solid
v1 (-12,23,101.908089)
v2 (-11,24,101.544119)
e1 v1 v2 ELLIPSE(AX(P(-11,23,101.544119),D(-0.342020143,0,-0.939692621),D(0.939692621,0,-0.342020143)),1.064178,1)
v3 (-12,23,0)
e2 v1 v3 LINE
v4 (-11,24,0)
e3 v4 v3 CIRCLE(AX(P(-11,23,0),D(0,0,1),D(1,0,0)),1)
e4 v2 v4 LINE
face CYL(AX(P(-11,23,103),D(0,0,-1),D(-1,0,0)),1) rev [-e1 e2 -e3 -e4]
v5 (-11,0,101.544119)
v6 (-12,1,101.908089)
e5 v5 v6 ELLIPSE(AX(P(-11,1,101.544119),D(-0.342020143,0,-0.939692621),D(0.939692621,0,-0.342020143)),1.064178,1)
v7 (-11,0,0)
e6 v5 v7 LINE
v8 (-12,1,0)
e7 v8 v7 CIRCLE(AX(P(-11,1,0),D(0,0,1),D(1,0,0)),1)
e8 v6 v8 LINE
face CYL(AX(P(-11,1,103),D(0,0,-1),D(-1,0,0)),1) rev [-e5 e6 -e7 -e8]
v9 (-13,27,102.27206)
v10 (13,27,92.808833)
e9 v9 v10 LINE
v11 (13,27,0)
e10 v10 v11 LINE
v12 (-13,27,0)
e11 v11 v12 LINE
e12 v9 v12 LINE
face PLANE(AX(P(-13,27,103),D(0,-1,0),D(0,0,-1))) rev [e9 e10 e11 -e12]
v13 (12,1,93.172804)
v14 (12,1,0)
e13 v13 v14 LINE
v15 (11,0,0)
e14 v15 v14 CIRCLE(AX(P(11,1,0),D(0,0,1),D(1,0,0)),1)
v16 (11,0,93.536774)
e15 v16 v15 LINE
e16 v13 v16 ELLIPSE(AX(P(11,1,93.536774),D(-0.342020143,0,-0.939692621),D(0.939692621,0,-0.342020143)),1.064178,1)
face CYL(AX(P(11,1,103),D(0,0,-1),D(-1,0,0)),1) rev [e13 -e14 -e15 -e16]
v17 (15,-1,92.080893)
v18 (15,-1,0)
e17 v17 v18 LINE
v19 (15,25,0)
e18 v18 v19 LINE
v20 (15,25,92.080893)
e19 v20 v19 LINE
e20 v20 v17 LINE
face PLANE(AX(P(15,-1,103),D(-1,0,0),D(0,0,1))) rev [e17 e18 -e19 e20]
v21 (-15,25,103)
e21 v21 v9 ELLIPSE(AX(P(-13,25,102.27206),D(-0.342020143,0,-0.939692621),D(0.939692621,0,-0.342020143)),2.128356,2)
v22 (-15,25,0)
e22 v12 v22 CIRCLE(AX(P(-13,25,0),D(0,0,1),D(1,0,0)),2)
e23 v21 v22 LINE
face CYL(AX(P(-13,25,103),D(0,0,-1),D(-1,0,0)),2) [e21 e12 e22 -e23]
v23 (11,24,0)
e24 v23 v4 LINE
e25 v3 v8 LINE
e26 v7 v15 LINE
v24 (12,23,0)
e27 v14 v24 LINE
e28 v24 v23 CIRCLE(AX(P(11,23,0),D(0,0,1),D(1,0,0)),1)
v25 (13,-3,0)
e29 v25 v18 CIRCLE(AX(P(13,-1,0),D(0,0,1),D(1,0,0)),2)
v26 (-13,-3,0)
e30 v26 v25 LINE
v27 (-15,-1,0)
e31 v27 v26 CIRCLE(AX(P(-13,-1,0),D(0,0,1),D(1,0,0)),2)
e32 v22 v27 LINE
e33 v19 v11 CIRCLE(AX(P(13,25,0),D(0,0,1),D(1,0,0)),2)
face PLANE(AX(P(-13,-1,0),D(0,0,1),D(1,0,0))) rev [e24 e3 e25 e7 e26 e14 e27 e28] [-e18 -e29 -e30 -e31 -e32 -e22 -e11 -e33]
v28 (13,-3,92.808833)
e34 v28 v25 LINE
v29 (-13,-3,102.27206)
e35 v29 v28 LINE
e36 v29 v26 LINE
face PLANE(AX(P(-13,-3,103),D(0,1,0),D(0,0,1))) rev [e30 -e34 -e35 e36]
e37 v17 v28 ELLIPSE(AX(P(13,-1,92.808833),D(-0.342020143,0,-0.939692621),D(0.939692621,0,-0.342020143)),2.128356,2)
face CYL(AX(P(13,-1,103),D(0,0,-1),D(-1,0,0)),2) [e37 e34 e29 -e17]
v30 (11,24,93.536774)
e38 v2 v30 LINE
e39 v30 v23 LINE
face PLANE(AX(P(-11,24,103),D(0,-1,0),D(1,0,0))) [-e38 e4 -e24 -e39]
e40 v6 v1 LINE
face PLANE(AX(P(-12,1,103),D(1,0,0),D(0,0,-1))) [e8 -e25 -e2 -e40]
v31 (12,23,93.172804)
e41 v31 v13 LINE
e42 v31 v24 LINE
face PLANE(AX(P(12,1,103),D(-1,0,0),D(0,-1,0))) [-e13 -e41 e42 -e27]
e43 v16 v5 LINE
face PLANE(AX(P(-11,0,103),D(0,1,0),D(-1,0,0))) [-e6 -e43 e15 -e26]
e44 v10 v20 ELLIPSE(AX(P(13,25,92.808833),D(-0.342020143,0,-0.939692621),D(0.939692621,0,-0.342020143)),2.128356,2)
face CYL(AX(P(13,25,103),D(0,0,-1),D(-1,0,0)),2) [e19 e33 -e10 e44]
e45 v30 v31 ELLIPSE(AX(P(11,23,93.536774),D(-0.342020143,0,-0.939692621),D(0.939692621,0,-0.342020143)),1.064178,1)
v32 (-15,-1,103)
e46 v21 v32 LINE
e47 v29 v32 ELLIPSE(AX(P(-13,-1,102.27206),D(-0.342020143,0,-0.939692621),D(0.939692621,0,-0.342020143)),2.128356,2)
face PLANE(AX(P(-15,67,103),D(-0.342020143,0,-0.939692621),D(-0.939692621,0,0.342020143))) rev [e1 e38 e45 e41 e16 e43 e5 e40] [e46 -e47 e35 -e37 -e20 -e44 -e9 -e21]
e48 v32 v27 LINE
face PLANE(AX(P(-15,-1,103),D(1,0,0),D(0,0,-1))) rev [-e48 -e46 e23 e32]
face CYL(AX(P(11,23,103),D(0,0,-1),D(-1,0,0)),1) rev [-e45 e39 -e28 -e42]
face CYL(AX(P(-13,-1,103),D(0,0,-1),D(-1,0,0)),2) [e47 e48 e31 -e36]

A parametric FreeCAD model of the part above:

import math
import FreeCAD as App
import Part
import Sketcher
from FreeCAD import Vector
Q = App.Units.Quantity


def add_polygon(sketch, points):
    """Adds a closed chain of lines whose ends are joined by coincident constraints."""
    first, n = sketch.GeometryCount, len(points)
    for a, b in zip(points, points[1:] + points[:1]):
        sketch.addGeometry(Part.LineSegment(App.Vector(*a, 0), App.Vector(*b, 0)), False)
    for i in range(n):
        sketch.addConstraint(Sketcher.Constraint("Coincident", first + i, 2, first + (i + 1) % n, 1))

doc = App.newDocument("Part")
body = doc.addObject("PartDesign::Body", "Body")

sketch1 = doc.addObject("Sketcher::SketchObject", "Sketch")
body.addObject(sketch1)
sketch1.AttachmentSupport = (doc.XY_Plane, [""])
sketch1.MapMode = "FlatFace"
sketch1.addGeometry(Part.LineSegment(Vector(-13, -3, 0), Vector(13, -3, 0)), False)
sketch1.addGeometry(Part.ArcOfCircle(Part.Circle(Vector(13, -1, 0), Vector(0, 0, 1), 2), math.radians(-90), math.radians(0)), False)
sketch1.addGeometry(Part.LineSegment(Vector(15, -1, 0), Vector(15, 25, 0)), False)
sketch1.addGeometry(Part.ArcOfCircle(Part.Circle(Vector(13, 25, 0), Vector(0, 0, 1), 2), math.radians(0), math.radians(90)), False)
sketch1.addGeometry(Part.LineSegment(Vector(13, 27, 0), Vector(-13, 27, 0)), False)
sketch1.addGeometry(Part.ArcOfCircle(Part.Circle(Vector(-13, 25, 0), Vector(0, 0, 1), 2), math.radians(90), math.radians(180)), False)
sketch1.addGeometry(Part.LineSegment(Vector(-15, 25, 0), Vector(-15, -1, 0)), False)
sketch1.addGeometry(Part.ArcOfCircle(Part.Circle(Vector(-13, -1, 0), Vector(0, 0, 1), 2), math.radians(-180), math.radians(-90)), False)
sketch1.addGeometry(Part.LineSegment(Vector(11, 0, 0), Vector(-11, 0, 0)), False)
sketch1.addGeometry(Part.ArcOfCircle(Part.Circle(Vector(-11, 1, 0), Vector(0, 0, 1), 1), math.radians(-180), math.radians(-90)), False)
sketch1.addGeometry(Part.LineSegment(Vector(-12, 1, 0), Vector(-12, 23, 0)), False)
sketch1.addGeometry(Part.ArcOfCircle(Part.Circle(Vector(-11, 23, 0), Vector(0, 0, 1), 1), math.radians(90), math.radians(180)), False)
sketch1.addGeometry(Part.LineSegment(Vector(-11, 24, 0), Vector(11, 24, 0)), False)
sketch1.addGeometry(Part.ArcOfCircle(Part.Circle(Vector(11, 23, 0), Vector(0, 0, 1), 1), math.radians(0), math.radians(90)), False)
sketch1.addGeometry(Part.LineSegment(Vector(12, 23, 0), Vector(12, 1, 0)), False)
sketch1.addGeometry(Part.ArcOfCircle(Part.Circle(Vector(11, 1, 0), Vector(0, 0, 1), 1), math.radians(-90), math.radians(0)), False)
sketch1.addConstraint(Sketcher.Constraint("Tangent", 0, 2, 1, 1))
sketch1.addConstraint(Sketcher.Constraint("Tangent", 1, 2, 2, 1))
sketch1.addConstraint(Sketcher.Constraint("Tangent", 2, 2, 3, 1))
sketch1.addConstraint(Sketcher.Constraint("Tangent", 3, 2, 4, 1))
sketch1.addConstraint(Sketcher.Constraint("Tangent", 4, 2, 5, 1))
sketch1.addConstraint(Sketcher.Constraint("Tangent", 5, 2, 6, 1))
sketch1.addConstraint(Sketcher.Constraint("Tangent", 6, 2, 7, 1))
sketch1.addConstraint(Sketcher.Constraint("Tangent", 7, 2, 0, 1))
sketch1.addConstraint(Sketcher.Constraint("Tangent", 8, 2, 9, 2))
sketch1.addConstraint(Sketcher.Constraint("Tangent", 9, 1, 10, 1))
sketch1.addConstraint(Sketcher.Constraint("Tangent", 10, 2, 11, 2))
sketch1.addConstraint(Sketcher.Constraint("Tangent", 11, 1, 12, 1))
sketch1.addConstraint(Sketcher.Constraint("Tangent", 12, 2, 13, 2))
sketch1.addConstraint(Sketcher.Constraint("Tangent", 13, 1, 14, 1))
sketch1.addConstraint(Sketcher.Constraint("Tangent", 14, 2, 15, 2))
sketch1.addConstraint(Sketcher.Constraint("Tangent", 15, 1, 8, 1))
sketch1.addConstraint(Sketcher.Constraint("Horizontal", 0))
sketch1.addConstraint(Sketcher.Constraint("Vertical", 2))
sketch1.addConstraint(Sketcher.Constraint("Horizontal", 4))
sketch1.addConstraint(Sketcher.Constraint("Vertical", 6))
sketch1.addConstraint(Sketcher.Constraint("Horizontal", 8))
sketch1.addConstraint(Sketcher.Constraint("Vertical", 10))
sketch1.addConstraint(Sketcher.Constraint("Horizontal", 12))
sketch1.addConstraint(Sketcher.Constraint("Vertical", 14))
sketch1.addConstraint(Sketcher.Constraint("Equal", 1, 3))
sketch1.addConstraint(Sketcher.Constraint("Equal", 3, 5))
sketch1.addConstraint(Sketcher.Constraint("Equal", 5, 7))
sketch1.addConstraint(Sketcher.Constraint("Equal", 9, 11))
sketch1.addConstraint(Sketcher.Constraint("Equal", 11, 13))
sketch1.addConstraint(Sketcher.Constraint("Equal", 13, 15))
sketch1.addConstraint(Sketcher.Constraint("Symmetric", 8, 2, 15, 1, -1, 1))
sketch1.addConstraint(Sketcher.Constraint("Equal", 4, 2))
sketch1.addConstraint(Sketcher.Constraint("Equal", 12, 10))
sketch1.addConstraint(Sketcher.Constraint("Radius", 1, 2.0))
sketch1.addConstraint(Sketcher.Constraint("Radius", 9, 1.0))
sketch1.addConstraint(Sketcher.Constraint("DistanceX", 0, 1, 0, 2, 26.0))
sketch1.addConstraint(Sketcher.Constraint("DistanceX", 8, 2, 8, 1, 22.0))
sketch1.addConstraint(Sketcher.Constraint("DistanceX", -1, 1, 1, 3, 13.0))
sketch1.addConstraint(Sketcher.Constraint("DistanceY", 1, 3, -1, 1, 1.0))
pad1 = doc.addObject("PartDesign::Pad", "Pad")
body.addObject(pad1)
pad1.Profile = sketch1
pad1.Length = 103

sketch2 = doc.addObject("Sketcher::SketchObject", "Sketch001")
body.addObject(sketch2)
sketch2.AttachmentSupport = (doc.XZ_Plane, [""])
sketch2.MapMode = "FlatFace"
sketch2.AttachmentOffset = App.Placement(Vector(0, 0, 3), App.Rotation())
add_polygon(sketch2, [(-15, 103), (66.156264, 73.461535), (66.156264, 103)])
sketch2.addConstraint(Sketcher.Constraint("Vertical", 1))
sketch2.addConstraint(Sketcher.Constraint("Horizontal", 2))
sketch2.addConstraint(Sketcher.Constraint("Angle", 0, Q("-20 deg")))
sketch2.addConstraint(Sketcher.Constraint("DistanceY", -1, 1, 1, 2, 103.0))
sketch2.addConstraint(Sketcher.Constraint("DistanceX", 2, 2, -1, 1, 15.0))
sketch2.addConstraint(Sketcher.Constraint("DistanceX", 2, 2, 2, 1, 81.156264))
pocket1 = doc.addObject("PartDesign::Pocket", "Pocket")
body.addObject(pocket1)
pocket1.Profile = sketch2
pocket1.Length = 70

doc.recompute()
